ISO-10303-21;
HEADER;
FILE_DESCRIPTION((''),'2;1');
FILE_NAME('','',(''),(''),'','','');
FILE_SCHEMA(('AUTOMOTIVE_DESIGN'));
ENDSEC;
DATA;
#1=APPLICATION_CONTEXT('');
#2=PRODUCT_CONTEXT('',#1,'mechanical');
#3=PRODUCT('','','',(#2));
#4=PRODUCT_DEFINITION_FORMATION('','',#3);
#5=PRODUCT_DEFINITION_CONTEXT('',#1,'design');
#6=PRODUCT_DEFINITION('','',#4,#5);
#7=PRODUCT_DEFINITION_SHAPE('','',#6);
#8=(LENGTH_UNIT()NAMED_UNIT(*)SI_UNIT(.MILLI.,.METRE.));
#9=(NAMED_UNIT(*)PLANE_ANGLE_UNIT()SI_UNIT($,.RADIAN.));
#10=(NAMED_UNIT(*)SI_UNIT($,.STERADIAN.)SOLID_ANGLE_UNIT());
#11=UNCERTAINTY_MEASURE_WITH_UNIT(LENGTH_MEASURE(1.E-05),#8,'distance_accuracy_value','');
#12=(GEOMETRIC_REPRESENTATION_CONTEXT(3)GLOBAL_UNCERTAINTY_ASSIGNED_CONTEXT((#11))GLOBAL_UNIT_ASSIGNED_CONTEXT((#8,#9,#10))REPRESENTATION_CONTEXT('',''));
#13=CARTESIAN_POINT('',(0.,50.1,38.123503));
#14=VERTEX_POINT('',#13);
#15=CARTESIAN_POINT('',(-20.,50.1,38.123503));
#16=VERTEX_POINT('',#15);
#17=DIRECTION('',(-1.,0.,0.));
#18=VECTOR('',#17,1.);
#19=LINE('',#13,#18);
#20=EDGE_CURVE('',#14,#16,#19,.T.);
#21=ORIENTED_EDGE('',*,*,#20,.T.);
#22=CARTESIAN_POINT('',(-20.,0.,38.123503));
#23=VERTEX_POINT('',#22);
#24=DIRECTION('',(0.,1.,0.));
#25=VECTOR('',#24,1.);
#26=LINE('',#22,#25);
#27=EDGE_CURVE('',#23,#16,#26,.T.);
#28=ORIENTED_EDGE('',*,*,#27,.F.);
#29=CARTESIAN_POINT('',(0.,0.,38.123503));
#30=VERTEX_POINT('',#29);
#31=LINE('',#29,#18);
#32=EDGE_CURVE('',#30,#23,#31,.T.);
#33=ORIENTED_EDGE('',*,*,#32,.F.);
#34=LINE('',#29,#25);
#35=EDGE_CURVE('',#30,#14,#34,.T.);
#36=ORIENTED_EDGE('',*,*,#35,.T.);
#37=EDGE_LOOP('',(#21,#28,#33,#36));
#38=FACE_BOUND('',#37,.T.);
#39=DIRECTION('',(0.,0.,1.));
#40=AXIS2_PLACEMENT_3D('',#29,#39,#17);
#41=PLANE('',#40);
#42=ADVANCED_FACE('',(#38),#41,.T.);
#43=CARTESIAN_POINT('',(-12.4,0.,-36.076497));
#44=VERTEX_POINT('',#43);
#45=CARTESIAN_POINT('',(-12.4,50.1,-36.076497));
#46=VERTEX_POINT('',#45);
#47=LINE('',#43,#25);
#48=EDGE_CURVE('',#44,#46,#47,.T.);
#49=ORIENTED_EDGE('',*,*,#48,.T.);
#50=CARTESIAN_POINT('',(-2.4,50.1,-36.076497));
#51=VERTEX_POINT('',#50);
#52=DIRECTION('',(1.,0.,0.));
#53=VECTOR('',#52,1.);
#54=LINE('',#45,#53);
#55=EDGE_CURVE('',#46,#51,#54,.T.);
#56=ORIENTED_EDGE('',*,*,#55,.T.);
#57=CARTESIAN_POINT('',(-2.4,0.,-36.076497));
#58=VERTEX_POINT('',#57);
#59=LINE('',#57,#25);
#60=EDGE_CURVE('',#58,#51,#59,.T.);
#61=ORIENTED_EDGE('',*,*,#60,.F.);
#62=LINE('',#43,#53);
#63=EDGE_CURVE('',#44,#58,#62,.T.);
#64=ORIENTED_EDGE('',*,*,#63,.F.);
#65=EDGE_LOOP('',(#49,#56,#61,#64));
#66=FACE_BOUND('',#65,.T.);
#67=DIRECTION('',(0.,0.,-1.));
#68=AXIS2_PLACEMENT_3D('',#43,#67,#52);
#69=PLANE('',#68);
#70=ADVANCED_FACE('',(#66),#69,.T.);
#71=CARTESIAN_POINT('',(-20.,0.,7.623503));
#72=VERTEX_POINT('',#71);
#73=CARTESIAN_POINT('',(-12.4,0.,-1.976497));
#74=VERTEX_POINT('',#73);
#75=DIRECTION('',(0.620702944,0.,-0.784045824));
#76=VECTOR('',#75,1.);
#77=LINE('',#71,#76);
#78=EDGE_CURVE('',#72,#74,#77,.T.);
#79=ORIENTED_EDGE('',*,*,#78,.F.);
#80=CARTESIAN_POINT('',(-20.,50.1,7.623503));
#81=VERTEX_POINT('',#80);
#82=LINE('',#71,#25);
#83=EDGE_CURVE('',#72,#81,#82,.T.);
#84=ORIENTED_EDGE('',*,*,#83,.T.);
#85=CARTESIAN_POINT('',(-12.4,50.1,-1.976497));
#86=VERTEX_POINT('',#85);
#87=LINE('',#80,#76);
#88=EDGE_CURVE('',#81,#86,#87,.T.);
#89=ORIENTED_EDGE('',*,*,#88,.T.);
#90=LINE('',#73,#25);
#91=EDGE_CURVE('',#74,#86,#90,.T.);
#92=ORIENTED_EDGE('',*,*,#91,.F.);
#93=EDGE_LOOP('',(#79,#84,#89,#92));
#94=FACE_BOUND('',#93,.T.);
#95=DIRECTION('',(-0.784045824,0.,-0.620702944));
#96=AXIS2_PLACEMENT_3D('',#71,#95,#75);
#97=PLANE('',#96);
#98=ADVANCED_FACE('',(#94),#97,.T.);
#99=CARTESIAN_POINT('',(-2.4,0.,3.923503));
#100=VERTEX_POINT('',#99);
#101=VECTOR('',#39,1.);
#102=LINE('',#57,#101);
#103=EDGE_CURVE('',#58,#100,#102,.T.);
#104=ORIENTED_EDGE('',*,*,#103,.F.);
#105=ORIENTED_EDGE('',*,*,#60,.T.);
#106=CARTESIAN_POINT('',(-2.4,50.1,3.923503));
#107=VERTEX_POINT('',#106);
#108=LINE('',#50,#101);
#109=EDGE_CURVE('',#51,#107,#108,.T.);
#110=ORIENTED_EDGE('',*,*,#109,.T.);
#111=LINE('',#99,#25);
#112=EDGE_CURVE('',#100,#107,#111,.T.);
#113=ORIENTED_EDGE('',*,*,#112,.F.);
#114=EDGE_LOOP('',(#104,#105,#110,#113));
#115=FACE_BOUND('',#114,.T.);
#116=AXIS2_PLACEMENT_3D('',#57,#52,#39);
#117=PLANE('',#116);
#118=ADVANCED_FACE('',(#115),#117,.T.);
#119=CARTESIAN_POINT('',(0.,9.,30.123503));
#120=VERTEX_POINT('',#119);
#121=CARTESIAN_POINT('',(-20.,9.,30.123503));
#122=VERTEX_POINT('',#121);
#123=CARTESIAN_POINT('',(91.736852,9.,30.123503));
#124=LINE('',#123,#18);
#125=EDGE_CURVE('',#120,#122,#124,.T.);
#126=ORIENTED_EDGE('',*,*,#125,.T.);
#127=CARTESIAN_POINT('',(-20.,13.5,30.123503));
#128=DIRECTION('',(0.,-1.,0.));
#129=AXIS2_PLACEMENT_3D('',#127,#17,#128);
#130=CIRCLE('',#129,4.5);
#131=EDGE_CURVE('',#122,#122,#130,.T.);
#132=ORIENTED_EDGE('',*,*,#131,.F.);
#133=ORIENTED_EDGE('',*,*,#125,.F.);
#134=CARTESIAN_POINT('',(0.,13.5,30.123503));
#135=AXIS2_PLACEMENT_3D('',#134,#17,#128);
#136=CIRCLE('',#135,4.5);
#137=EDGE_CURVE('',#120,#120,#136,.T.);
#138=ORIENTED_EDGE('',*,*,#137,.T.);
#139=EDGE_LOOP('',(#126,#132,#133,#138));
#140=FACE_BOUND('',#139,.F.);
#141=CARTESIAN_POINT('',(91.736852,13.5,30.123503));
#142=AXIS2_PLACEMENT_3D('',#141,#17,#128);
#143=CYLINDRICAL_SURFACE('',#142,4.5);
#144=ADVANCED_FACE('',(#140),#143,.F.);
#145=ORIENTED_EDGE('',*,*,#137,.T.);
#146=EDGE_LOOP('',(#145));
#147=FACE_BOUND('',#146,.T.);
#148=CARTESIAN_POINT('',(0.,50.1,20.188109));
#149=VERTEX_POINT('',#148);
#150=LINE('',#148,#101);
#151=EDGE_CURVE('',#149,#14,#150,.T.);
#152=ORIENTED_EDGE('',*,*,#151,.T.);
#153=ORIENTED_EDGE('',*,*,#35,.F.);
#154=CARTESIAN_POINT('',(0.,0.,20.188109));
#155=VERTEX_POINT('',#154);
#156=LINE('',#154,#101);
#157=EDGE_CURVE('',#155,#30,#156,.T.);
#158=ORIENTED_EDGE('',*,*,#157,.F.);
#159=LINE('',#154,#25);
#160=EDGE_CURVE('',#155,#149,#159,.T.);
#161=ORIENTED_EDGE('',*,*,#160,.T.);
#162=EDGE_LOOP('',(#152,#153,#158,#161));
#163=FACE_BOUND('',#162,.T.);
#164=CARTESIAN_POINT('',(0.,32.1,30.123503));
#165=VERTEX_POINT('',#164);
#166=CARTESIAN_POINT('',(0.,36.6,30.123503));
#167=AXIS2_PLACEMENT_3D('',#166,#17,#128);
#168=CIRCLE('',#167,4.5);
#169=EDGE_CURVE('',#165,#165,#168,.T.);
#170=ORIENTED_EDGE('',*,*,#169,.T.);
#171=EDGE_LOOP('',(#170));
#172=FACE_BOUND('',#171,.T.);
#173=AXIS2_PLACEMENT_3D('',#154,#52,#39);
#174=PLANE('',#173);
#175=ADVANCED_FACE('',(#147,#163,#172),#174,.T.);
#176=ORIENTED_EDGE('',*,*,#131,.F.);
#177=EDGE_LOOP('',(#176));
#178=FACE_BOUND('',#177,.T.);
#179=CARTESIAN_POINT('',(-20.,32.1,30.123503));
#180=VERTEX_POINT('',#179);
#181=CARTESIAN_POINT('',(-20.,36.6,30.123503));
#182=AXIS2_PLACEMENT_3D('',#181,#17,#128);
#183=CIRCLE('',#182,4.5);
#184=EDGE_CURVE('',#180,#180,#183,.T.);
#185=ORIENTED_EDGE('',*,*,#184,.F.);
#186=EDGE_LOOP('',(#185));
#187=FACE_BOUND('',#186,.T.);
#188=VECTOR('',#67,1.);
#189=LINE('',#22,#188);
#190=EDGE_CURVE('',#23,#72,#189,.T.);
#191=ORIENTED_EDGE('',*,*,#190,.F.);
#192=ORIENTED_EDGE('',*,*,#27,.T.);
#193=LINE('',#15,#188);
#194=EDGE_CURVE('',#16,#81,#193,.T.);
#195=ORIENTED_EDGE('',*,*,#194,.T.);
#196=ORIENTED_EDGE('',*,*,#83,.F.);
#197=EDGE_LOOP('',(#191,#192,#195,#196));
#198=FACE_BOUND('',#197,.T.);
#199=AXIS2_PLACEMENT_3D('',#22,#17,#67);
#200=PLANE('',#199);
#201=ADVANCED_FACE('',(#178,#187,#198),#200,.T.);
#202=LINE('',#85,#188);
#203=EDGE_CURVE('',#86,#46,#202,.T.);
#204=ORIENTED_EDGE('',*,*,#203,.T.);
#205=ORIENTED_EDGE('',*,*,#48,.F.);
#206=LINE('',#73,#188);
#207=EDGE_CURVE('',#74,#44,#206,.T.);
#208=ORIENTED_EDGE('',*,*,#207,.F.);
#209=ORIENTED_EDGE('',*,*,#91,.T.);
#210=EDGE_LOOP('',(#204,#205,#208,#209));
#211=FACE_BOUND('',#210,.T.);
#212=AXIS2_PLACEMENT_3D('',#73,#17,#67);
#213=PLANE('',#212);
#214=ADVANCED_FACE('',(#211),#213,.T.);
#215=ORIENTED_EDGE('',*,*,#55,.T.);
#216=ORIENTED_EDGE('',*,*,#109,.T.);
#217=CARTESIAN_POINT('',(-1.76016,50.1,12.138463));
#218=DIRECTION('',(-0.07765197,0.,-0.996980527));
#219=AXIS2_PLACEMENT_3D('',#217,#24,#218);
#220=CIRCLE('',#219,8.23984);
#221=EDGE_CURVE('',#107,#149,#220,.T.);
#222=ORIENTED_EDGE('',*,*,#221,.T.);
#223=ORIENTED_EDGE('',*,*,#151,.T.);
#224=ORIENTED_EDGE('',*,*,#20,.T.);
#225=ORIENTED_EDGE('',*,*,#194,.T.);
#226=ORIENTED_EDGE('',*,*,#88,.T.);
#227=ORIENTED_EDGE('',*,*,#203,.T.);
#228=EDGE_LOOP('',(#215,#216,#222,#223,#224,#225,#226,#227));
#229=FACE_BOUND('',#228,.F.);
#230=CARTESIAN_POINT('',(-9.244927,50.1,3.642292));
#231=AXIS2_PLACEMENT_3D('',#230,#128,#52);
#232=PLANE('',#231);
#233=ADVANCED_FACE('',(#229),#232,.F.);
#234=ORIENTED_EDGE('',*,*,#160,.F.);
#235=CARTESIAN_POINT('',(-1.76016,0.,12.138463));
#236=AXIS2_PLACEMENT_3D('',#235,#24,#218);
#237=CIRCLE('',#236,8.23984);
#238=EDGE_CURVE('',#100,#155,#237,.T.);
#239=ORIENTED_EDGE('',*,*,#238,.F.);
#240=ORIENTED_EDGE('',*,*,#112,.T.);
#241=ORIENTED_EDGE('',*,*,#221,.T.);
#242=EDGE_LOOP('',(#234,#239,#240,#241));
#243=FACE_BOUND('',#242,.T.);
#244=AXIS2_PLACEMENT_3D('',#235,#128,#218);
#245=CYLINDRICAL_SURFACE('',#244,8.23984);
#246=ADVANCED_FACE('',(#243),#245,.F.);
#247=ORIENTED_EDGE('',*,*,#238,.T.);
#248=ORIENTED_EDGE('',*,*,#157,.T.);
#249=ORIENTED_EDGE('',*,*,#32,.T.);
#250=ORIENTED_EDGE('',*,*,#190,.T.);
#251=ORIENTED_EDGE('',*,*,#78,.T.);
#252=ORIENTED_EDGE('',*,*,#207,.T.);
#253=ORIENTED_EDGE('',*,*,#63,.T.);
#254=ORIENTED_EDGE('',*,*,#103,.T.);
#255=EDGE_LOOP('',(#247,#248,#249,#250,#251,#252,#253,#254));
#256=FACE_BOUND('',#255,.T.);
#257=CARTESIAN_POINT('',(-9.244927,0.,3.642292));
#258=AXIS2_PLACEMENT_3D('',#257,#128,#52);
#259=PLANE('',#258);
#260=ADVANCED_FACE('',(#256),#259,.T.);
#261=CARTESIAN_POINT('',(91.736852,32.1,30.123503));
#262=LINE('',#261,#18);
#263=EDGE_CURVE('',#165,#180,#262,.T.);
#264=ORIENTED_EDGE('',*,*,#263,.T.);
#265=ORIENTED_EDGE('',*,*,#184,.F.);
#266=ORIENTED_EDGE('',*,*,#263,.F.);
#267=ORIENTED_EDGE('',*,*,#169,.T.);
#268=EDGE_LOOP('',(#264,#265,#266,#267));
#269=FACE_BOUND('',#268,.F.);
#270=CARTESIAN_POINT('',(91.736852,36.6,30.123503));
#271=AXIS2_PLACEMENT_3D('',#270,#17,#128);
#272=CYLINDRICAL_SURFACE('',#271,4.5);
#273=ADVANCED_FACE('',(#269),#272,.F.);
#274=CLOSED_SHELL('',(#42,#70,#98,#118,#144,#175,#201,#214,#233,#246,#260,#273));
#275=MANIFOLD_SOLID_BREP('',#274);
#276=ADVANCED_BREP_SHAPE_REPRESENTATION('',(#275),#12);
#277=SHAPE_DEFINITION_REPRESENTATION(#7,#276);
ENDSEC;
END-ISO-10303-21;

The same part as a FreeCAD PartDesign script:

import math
import FreeCAD as App
import Part
import Sketcher
from FreeCAD import Vector

doc = App.newDocument("Part")
body = doc.addObject("PartDesign::Body", "Body")

sketch1 = body.newObject("Sketcher::SketchObject", "Sketch")
sketch1.AttachmentSupport = (doc.getObject("XZ_Plane"), [""])
sketch1.MapMode = "FlatFace"
sketch1.addGeometry([
    Part.LineSegment(Vector(0, 20, 0), Vector(0, 38, 0)),
    Part.LineSegment(Vector(0, 38, 0), Vector(-20, 38, 0)),
    Part.LineSegment(Vector(-20, 38, 0), Vector(-20, 8, 0)),
    Part.LineSegment(Vector(-20, 8, 0), Vector(-12, -2, 0)),
    Part.LineSegment(Vector(-12, -2, 0), Vector(-12, -36, 0)),
    Part.LineSegment(Vector(-12, -36, 0), Vector(-2, -36, 0)),
    Part.LineSegment(Vector(-2, -36, 0), Vector(-2, 4, 0)),
    Part.ArcOfCircle(Part.Circle(Vector(-2, 12, 0), Vector(0, 0, 1), 8), math.radians(78), math.radians(266)),
], False)
sketch1.addConstraint([
    Sketcher.Constraint("Coincident", 0, 2, 1, 1),
    Sketcher.Constraint("Coincident", 1, 2, 2, 1),
    Sketcher.Constraint("Coincident", 2, 2, 3, 1),
    Sketcher.Constraint("Coincident", 3, 2, 4, 1),
    Sketcher.Constraint("Coincident", 4, 2, 5, 1),
    Sketcher.Constraint("Coincident", 5, 2, 6, 1),
    Sketcher.Constraint("Coincident", 6, 2, 7, 2),
    Sketcher.Constraint("Coincident", 7, 1, 0, 1),
    Sketcher.Constraint("Vertical", 0),
    Sketcher.Constraint("Horizontal", 1),
    Sketcher.Constraint("Vertical", 2),
    Sketcher.Constraint("Vertical", 4),
    Sketcher.Constraint("Horizontal", 5),
    Sketcher.Constraint("Vertical", 6),
    Sketcher.Constraint("PointOnObject", 0, 2, -2),
    Sketcher.Constraint("DistanceX", 1, 2, 1, 1, 20.0),
    Sketcher.Constraint("DistanceX", 5, 1, 5, 2, 10.0),
    Sketcher.Constraint("DistanceY", 6, 1, 6, 2, 40.0),
    Sketcher.Constraint("DistanceY", 2, 2, 2, 1, 30.5),
    Sketcher.Constraint("DistanceY", 4, 2, 4, 1, 34.1),
    Sketcher.Constraint("DistanceX", 3, 2, -1, 1, 12.4),
    Sketcher.Constraint("DistanceY", 3, 2, 2, 2, 9.6),
    Sketcher.Constraint("Radius", 7, 8.23984),
    Sketcher.Constraint("DistanceY", 0, 1, 0, 2, 17.935394),
    Sketcher.Constraint("DistanceY", -1, 1, 7, 1, 20.188109),
])
pad1 = body.newObject("PartDesign::Pad", "Pad")
pad1.Profile = sketch1
pad1.Length = 50.1
pad1.Reversed = True

sketch2 = body.newObject("Sketcher::SketchObject", "Sketch001")
sketch2.AttachmentSupport = (doc.getObject("YZ_Plane"), [""])
sketch2.MapMode = "FlatFace"
sketch2.addGeometry([
    Part.Circle(Vector(13.5, 30.1, 0), Vector(0, 0, 1), 4.5),
    Part.Circle(Vector(36.6, 30.1, 0), Vector(0, 0, 1), 4.5),
], False)
sketch2.addConstraint([
    Sketcher.Constraint("Equal", 0, 1),
    Sketcher.Constraint("Horizontal", 0, 3, 1, 3),
    Sketcher.Constraint("Diameter", 0, 9.0),
    Sketcher.Constraint("DistanceX", -1, 1, 0, 3, 13.5),
    Sketcher.Constraint("DistanceX", -1, 1, 1, 3, 36.6),
    Sketcher.Constraint("DistanceY", -1, 1, 0, 3, 30.123503),
])
doc.recompute()
hole = body.newObject("PartDesign::Hole", "Hole")
hole.Profile = sketch2
hole.ThreadType = "None"
hole.Diameter = 9
hole.DepthType = "ThroughAll"

doc.recompute()
